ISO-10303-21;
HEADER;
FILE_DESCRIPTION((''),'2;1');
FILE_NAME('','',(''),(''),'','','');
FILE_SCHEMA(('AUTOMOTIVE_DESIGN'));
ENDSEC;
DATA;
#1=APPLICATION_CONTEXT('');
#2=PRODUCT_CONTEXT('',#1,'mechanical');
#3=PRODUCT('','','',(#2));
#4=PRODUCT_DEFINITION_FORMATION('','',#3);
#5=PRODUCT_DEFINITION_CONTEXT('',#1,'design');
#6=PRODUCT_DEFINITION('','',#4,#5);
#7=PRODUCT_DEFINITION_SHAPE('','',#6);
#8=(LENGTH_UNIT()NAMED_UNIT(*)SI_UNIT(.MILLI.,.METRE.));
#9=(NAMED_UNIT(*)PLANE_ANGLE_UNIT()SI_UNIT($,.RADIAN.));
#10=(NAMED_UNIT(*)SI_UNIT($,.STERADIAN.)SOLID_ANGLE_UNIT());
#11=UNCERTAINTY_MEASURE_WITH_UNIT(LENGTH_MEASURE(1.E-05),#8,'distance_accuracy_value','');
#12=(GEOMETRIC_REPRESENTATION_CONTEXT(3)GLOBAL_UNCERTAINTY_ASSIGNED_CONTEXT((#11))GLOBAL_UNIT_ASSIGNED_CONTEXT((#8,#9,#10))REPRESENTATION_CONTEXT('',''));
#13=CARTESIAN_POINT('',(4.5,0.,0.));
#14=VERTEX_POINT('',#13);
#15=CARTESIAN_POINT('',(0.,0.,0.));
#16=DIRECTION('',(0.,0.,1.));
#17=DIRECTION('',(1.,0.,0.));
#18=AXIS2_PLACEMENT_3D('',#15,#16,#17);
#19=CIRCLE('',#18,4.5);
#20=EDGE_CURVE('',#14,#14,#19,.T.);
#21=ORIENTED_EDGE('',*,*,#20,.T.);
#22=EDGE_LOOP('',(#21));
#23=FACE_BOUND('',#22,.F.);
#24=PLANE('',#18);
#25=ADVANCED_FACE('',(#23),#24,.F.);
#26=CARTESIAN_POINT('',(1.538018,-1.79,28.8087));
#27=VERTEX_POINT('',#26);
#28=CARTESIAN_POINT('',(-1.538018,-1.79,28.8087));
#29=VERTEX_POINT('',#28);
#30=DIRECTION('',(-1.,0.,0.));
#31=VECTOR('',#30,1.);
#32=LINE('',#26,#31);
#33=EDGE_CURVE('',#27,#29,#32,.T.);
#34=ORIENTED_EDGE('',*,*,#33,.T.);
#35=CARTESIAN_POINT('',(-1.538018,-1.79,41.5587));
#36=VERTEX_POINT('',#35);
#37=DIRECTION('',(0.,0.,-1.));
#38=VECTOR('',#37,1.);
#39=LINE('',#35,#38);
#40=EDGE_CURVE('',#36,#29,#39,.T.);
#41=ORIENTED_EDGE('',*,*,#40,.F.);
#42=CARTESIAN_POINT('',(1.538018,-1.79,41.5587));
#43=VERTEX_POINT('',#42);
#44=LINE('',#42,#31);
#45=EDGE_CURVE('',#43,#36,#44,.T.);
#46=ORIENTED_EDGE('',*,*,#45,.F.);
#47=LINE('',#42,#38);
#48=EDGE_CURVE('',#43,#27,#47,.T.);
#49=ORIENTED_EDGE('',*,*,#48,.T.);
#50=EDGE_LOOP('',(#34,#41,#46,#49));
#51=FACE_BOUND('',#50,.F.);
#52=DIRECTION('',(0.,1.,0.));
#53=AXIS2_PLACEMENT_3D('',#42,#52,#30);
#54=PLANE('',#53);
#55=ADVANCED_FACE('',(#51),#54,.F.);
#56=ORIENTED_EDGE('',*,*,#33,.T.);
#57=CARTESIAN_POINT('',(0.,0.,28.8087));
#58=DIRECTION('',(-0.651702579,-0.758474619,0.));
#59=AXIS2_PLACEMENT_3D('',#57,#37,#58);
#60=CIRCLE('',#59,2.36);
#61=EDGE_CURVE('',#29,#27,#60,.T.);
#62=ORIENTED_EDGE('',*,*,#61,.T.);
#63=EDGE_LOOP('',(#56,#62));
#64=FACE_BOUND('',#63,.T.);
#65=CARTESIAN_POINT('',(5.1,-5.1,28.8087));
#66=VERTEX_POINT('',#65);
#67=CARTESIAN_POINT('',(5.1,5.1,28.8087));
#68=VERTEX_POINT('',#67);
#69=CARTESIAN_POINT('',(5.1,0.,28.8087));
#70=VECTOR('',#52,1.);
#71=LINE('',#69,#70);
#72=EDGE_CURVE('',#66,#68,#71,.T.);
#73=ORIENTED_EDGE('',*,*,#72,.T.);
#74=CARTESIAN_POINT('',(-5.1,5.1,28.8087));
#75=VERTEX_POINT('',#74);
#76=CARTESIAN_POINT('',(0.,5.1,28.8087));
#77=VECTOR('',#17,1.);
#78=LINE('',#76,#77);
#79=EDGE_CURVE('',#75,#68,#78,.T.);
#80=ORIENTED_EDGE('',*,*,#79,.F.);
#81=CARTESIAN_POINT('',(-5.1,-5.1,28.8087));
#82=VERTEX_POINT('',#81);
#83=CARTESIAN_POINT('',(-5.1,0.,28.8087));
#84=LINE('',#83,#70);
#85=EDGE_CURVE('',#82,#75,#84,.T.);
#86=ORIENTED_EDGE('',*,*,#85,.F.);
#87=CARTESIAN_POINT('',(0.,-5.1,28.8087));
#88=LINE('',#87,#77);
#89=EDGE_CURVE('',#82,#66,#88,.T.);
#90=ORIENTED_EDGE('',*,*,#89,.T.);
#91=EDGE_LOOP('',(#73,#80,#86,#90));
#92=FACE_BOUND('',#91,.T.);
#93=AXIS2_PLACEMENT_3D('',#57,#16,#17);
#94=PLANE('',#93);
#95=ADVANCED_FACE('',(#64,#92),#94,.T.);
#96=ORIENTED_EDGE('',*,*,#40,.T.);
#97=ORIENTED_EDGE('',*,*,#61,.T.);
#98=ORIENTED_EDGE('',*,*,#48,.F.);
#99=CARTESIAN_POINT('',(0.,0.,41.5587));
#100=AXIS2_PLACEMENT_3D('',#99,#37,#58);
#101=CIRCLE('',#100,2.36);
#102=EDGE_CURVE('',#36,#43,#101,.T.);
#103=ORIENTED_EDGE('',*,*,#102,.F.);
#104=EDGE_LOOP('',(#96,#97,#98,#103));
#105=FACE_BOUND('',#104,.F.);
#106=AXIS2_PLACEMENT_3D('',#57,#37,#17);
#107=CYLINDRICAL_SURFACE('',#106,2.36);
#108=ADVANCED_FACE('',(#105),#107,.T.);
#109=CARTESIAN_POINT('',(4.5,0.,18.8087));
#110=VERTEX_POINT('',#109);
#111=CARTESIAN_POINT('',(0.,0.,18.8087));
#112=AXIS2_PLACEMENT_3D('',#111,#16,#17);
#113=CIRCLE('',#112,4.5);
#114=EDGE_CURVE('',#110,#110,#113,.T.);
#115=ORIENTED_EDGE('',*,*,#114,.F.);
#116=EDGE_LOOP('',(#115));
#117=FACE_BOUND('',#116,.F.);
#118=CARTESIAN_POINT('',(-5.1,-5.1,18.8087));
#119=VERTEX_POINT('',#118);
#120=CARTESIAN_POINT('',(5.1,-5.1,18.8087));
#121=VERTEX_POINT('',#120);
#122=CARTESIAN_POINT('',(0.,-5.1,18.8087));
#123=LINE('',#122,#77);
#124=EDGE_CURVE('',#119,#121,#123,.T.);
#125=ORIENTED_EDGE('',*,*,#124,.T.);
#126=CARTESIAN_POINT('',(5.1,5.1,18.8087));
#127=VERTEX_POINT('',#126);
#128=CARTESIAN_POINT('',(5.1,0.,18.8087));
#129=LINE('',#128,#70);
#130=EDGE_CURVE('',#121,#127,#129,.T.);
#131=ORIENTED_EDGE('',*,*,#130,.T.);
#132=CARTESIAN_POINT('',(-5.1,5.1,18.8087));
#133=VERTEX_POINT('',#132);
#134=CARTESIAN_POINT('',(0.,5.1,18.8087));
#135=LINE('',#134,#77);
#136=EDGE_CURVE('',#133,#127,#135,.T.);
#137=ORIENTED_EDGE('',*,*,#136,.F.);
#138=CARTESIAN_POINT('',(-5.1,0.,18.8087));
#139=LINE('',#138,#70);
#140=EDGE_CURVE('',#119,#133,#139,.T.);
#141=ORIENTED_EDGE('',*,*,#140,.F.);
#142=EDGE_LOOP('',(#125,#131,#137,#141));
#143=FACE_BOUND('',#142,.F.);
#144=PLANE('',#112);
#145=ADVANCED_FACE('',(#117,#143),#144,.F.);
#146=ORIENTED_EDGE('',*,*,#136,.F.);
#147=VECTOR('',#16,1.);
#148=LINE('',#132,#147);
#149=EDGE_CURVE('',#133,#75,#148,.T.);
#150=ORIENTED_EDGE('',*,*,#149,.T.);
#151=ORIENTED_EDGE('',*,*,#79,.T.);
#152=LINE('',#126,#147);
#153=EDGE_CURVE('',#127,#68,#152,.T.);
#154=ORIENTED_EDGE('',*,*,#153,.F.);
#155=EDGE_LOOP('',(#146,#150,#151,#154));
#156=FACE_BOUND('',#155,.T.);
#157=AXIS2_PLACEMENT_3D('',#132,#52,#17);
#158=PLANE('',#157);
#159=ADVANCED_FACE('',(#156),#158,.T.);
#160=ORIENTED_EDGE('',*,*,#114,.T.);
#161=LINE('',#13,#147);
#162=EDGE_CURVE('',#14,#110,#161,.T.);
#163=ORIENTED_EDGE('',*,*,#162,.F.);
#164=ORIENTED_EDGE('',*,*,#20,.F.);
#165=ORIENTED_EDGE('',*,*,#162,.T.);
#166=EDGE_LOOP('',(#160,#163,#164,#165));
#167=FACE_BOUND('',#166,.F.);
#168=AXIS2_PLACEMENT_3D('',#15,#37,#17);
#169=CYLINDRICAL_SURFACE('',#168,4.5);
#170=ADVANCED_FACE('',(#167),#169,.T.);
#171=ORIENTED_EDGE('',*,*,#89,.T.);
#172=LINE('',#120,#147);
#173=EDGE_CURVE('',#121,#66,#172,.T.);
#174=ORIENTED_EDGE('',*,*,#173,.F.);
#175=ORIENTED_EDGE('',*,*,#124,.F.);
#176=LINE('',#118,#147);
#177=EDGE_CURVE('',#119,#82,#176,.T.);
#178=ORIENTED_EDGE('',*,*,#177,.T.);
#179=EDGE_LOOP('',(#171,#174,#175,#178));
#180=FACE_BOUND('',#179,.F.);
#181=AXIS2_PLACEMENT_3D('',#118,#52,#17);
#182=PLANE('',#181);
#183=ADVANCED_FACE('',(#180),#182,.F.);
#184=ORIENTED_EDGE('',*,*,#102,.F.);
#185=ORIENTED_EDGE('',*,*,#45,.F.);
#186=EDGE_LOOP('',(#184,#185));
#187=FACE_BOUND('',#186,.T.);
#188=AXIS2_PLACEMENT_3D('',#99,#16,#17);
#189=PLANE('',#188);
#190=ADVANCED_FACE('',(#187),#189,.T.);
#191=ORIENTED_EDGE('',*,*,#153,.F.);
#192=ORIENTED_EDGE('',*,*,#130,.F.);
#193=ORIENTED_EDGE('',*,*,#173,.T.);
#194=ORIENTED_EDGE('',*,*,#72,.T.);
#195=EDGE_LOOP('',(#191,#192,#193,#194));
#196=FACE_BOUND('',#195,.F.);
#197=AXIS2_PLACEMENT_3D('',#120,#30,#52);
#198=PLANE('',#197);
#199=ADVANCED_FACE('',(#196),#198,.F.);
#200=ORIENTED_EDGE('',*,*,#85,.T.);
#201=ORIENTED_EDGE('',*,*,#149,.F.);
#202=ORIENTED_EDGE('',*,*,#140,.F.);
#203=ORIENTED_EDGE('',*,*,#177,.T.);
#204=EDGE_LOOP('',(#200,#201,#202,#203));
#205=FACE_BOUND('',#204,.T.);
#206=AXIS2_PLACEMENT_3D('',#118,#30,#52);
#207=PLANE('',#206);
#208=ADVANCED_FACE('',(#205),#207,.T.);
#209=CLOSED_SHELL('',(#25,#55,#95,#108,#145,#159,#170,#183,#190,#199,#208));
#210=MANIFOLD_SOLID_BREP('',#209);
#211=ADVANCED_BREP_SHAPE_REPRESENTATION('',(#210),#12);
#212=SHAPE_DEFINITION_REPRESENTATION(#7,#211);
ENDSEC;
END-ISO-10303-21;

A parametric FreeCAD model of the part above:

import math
import FreeCAD as App
import Part
import Sketcher
Q = App.Units.Quantity

doc = App.newDocument("Part")
params = doc.addObject("Spreadsheet::Sheet", "Params")
for row, (alias, value) in enumerate([
    ("sketch1_diameter", "9 mm"),
    ("pad1_length", "18.8087 mm"),
    ("sketch2_width", "10.2 mm"),
    ("pad2_length", "10 mm"),
    ("sketch3_diameter", "4.72 mm"),
    ("pad3_length", "12.75 mm"),
    ("pocket1_length", "12.75 mm"),
], start=1):
    params.set(f"A{row}", alias)
    params.set(f"B{row}", "=" + value)
    params.setAlias(f"B{row}", alias)

body = doc.addObject("PartDesign::Body", "Body")

sketch1 = body.newObject("Sketcher::SketchObject", "Sketch")
sketch1.AttachmentSupport = (doc.getObject("XY_Plane"), [""])
sketch1.MapMode = "FlatFace"
sketch1.addGeometry(Part.Circle(App.Vector(0, 0, 0), App.Vector(0, 0, 1), 4.5), False)
sketch1.addConstraint([
    Sketcher.Constraint("Coincident", 0, 3, -1, 1),
    Sketcher.Constraint("Diameter", 0, Q("9 mm")),
])
sketch1.setExpression("Constraints[1]", "Params.sketch1_diameter")
pad1 = body.newObject("PartDesign::Pad", "Pad")
pad1.Profile = sketch1
pad1.setExpression("Length", "Params.pad1_length")

sketch2 = body.newObject("Sketcher::SketchObject", "Sketch001")
sketch2.AttachmentSupport = (doc.getObject("XY_Plane"), [""])
sketch2.MapMode = "FlatFace"
sketch2.AttachmentOffset = App.Placement(App.Vector(0, 0, 18.8087), App.Rotation())
sketch2.addGeometry([
    Part.LineSegment(App.Vector(-5.1, 5.1, 0), App.Vector(-5.1, -5.1, 0)),
    Part.LineSegment(App.Vector(-5.1, -5.1, 0), App.Vector(5.1, -5.1, 0)),
    Part.LineSegment(App.Vector(5.1, -5.1, 0), App.Vector(5.1, 5.1, 0)),
    Part.LineSegment(App.Vector(5.1, 5.1, 0), App.Vector(-5.1, 5.1, 0)),
], False)
sketch2.addConstraint([
    Sketcher.Constraint("Coincident", 0, 2, 1, 1),
    Sketcher.Constraint("Coincident", 1, 2, 2, 1),
    Sketcher.Constraint("Coincident", 2, 2, 3, 1),
    Sketcher.Constraint("Coincident", 3, 2, 0, 1),
    Sketcher.Constraint("Vertical", 0),
    Sketcher.Constraint("Horizontal", 1),
    Sketcher.Constraint("Vertical", 2),
    Sketcher.Constraint("Horizontal", 3),
    Sketcher.Constraint("Symmetric", 0, 2, 2, 2, -1, 1),
    Sketcher.Constraint("Equal", 3, 0),
    Sketcher.Constraint("DistanceX", 1, 1, 1, 2, Q("10.2 mm")),
])
sketch2.setExpression("Constraints[10]", "Params.sketch2_width")
pad2 = body.newObject("PartDesign::Pad", "Pad001")
pad2.Profile = sketch2
pad2.setExpression("Length", "Params.pad2_length")

sketch3 = body.newObject("Sketcher::SketchObject", "Sketch002")
sketch3.AttachmentSupport = (doc.getObject("XY_Plane"), [""])
sketch3.MapMode = "FlatFace"
sketch3.AttachmentOffset = App.Placement(App.Vector(0, 0, 28.8087), App.Rotation())
sketch3.addGeometry(Part.Circle(App.Vector(0, 0, 0), App.Vector(0, 0, 1), 2.36), False)
sketch3.addConstraint([
    Sketcher.Constraint("Coincident", 0, 3, -1, 1),
    Sketcher.Constraint("Diameter", 0, Q("4.72 mm")),
])
sketch3.setExpression("Constraints[1]", "Params.sketch3_diameter")
pad3 = body.newObject("PartDesign::Pad", "Pad002")
pad3.Profile = sketch3
pad3.setExpression("Length", "Params.pad3_length")

sketch4 = body.newObject("Sketcher::SketchObject", "Sketch003")
sketch4.AttachmentSupport = (doc.getObject("XY_Plane"), [""])
sketch4.MapMode = "FlatFace"
sketch4.AttachmentOffset = App.Placement(App.Vector(0, 0, 41.5587), App.Rotation())
sketch4.addGeometry([
    Part.ArcOfCircle(Part.Circle(App.Vector(-0.000002, -0.000007, 0), App.Vector(0, 0, 1), 2.359993), math.radians(-130.670156), math.radians(-89.999945)),
    Part.ArcOfCircle(Part.Circle(App.Vector(0.000002, -0.000007, 0), App.Vector(0, 0, 1), 2.359993), math.radians(-90.000055), math.radians(-49.329844)),
    Part.LineSegment(App.Vector(1.538018, -1.79, 0), App.Vector(-1.538018, -1.79, 0)),
], False)
sketch4.addConstraint([
    Sketcher.Constraint("Tangent", 0, 2, 1, 1),
    Sketcher.Constraint("Coincident", 1, 2, 2, 1),
    Sketcher.Constraint("Coincident", 2, 2, 0, 1),
    Sketcher.Constraint("Horizontal", 2),
    Sketcher.Constraint("Coincident", 0, 3, -1, 1),
    Sketcher.Constraint("Equal", 0, 1),
    Sketcher.Constraint("PointOnObject", 0, 2, -2),
    Sketcher.Constraint("DistanceY", 0, 2, -1, 1, Q("2.36 mm")),
    Sketcher.Constraint("DistanceY", 1, 2, -1, 1, Q("1.79 mm")),
])
pocket1 = body.newObject("PartDesign::Pocket", "Pocket")
pocket1.Profile = sketch4
pocket1.setExpression("Length", "Params.pocket1_length")

doc.recompute()
